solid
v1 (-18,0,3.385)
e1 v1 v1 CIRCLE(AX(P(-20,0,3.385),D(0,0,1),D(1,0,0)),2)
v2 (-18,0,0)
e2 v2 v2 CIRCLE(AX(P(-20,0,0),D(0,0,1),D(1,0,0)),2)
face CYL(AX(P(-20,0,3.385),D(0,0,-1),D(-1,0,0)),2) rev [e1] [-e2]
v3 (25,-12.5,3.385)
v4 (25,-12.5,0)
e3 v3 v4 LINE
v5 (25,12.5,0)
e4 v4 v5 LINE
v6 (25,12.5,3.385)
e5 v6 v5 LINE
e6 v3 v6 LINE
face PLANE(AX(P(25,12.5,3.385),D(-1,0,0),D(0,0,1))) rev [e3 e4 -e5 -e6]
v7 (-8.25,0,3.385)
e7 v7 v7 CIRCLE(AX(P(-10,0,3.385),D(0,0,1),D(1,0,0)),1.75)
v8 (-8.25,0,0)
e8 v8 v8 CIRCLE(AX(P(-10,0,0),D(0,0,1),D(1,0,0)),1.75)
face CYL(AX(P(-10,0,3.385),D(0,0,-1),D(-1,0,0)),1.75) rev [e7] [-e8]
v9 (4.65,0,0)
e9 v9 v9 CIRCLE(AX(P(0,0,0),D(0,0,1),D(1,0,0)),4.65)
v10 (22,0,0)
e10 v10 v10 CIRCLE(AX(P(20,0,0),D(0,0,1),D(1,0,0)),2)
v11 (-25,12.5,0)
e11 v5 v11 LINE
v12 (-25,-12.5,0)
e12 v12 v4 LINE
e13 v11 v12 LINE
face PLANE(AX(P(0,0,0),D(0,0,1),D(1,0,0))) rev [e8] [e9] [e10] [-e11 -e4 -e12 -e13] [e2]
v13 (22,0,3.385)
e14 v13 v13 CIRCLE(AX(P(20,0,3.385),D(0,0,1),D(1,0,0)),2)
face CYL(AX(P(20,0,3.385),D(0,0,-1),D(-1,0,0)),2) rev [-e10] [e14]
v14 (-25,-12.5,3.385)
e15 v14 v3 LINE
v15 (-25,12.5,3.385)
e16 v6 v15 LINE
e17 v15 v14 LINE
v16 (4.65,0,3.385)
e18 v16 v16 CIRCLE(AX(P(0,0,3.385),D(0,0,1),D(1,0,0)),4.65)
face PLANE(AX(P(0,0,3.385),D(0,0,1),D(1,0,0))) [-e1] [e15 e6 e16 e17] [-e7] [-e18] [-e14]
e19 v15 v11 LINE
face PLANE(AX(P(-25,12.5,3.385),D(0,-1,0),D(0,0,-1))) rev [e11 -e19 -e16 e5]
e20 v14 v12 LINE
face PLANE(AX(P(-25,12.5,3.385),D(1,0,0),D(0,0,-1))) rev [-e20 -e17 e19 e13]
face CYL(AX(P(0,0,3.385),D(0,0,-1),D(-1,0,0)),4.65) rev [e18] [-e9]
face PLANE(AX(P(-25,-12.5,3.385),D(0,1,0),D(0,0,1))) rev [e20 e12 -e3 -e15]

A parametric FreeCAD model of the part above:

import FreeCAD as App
import Part
import Sketcher
from FreeCAD import Vector


def add_polygon(sketch, points):
    """Adds a closed chain of lines whose ends are joined by coincident constraints."""
    first, n = sketch.GeometryCount, len(points)
    for a, b in zip(points, points[1:] + points[:1]):
        sketch.addGeometry(Part.LineSegment(App.Vector(*a, 0), App.Vector(*b, 0)), False)
    for i in range(n):
        sketch.addConstraint(Sketcher.Constraint("Coincident", first + i, 2, first + (i + 1) % n, 1))

doc = App.newDocument("Part")
body = doc.addObject("PartDesign::Body", "Body")

sketch1 = body.newObject("Sketcher::SketchObject", "Sketch")
sketch1.AttachmentSupport = (doc.getObject("XY_Plane"), [""])
sketch1.MapMode = "FlatFace"
add_polygon(sketch1, [(-25, 12.5), (-25, -12.5), (25, -12.5), (25, 12.5)])
sketch1.addGeometry(Part.Circle(Vector(-20, 0, 0), Vector(0, 0, 1), 2), False)
sketch1.addGeometry(Part.Circle(Vector(-10, 0, 0), Vector(0, 0, 1), 1.8), False)
sketch1.addGeometry(Part.Circle(Vector(0, 0, 0), Vector(0, 0, 1), 4.7), False)
sketch1.addGeometry(Part.Circle(Vector(20, 0, 0), Vector(0, 0, 1), 2), False)
sketch1.addConstraint(Sketcher.Constraint("Vertical", 0))
sketch1.addConstraint(Sketcher.Constraint("Horizontal", 1))
sketch1.addConstraint(Sketcher.Constraint("Vertical", 2))
sketch1.addConstraint(Sketcher.Constraint("Horizontal", 3))
sketch1.addConstraint(Sketcher.Constraint("Coincident", 6, 3, -1, 1))
sketch1.addConstraint(Sketcher.Constraint("Equal", 4, 7))
sketch1.addConstraint(Sketcher.Constraint("Symmetric", 4, 3, 7, 3, -1, 1))
sketch1.addConstraint(Sketcher.Constraint("Symmetric", 0, 2, 2, 2, -1, 1))
sketch1.addConstraint(Sketcher.Constraint("PointOnObject", 4, 3, -1))
sketch1.addConstraint(Sketcher.Constraint("PointOnObject", 5, 3, -1))
sketch1.addConstraint(Sketcher.Constraint("Diameter", 4, 4.0))
sketch1.addConstraint(Sketcher.Constraint("Diameter", 5, 3.5))
sketch1.addConstraint(Sketcher.Constraint("Diameter", 6, 9.3))
sketch1.addConstraint(Sketcher.Constraint("DistanceX", 1, 1, 1, 2, 50.0))
sketch1.addConstraint(Sketcher.Constraint("DistanceY", 0, 2, 0, 1, 25.0))
sketch1.addConstraint(Sketcher.Constraint("DistanceX", 4, 3, -1, 1, 20.0))
sketch1.addConstraint(Sketcher.Constraint("DistanceX", 5, 3, -1, 1, 10.0))
pad1 = body.newObject("PartDesign::Pad", "Pad")
pad1.Profile = sketch1
pad1.Length = 3.385

doc.recompute()
